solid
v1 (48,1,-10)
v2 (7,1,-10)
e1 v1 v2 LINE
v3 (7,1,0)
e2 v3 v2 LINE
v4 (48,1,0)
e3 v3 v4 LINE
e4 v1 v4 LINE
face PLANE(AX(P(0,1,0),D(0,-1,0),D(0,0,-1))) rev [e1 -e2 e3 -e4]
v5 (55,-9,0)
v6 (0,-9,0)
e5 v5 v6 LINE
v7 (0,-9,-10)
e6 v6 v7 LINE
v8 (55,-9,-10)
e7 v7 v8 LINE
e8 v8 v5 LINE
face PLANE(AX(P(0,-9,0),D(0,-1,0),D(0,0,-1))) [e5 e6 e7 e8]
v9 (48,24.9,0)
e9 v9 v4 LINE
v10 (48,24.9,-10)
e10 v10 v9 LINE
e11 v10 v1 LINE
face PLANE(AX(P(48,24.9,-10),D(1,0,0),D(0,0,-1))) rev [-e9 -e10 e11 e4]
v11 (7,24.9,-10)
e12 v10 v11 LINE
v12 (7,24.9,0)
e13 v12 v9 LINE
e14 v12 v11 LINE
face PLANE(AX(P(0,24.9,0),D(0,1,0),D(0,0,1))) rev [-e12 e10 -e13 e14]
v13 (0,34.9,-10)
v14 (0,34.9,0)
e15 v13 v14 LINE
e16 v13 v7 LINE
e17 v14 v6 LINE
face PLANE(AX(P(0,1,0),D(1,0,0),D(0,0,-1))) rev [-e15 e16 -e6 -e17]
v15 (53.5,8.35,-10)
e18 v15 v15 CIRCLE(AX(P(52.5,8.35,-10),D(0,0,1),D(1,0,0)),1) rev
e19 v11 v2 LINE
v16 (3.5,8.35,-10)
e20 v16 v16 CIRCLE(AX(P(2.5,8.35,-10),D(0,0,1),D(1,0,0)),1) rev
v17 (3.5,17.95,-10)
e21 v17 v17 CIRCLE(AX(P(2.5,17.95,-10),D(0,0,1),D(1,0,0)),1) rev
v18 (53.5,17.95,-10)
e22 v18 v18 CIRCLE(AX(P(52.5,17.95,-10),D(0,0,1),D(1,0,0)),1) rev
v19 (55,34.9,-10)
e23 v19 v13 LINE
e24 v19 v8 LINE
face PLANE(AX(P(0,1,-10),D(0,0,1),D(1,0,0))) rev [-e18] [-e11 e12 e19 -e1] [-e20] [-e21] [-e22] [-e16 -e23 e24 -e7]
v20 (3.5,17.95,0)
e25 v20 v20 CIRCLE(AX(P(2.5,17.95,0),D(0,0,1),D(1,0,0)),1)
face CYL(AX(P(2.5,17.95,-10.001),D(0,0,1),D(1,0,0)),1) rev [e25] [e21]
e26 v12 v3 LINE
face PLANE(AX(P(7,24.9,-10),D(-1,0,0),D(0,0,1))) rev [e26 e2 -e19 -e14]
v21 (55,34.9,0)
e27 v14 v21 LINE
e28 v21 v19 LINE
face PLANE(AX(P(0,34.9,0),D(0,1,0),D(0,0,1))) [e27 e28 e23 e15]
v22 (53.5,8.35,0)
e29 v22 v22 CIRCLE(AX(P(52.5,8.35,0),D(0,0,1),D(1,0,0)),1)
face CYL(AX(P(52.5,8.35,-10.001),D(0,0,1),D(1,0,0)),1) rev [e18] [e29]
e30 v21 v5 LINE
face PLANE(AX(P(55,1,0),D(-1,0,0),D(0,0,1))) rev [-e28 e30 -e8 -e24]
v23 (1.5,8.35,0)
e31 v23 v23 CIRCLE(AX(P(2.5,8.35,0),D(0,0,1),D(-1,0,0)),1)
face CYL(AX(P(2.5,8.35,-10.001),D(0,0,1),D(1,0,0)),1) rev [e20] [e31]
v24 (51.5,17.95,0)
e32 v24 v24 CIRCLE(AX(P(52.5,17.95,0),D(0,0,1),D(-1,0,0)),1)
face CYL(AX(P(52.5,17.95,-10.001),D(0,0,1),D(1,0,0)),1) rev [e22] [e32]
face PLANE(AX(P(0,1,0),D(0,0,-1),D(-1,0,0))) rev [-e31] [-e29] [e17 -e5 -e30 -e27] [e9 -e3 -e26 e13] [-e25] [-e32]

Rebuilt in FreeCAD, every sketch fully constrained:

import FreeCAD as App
import Part
import Sketcher
from FreeCAD import Vector

doc = App.newDocument("Part")
body = doc.addObject("PartDesign::Body", "Body")

# Sketch on XZ plane
sketch1 = body.newObject("Sketcher::SketchObject", "Sketch")
sketch1.AttachmentSupport = (doc.getObject("XZ_Plane"), [""])
sketch1.MapMode = "FlatFace"
sketch1.addGeometry([
    Part.LineSegment(Vector(0, -10, 0), Vector(0, 0, 0)),
    Part.LineSegment(Vector(0, 0, 0), Vector(55, 0, 0)),
    Part.LineSegment(Vector(55, 0, 0), Vector(55, -10, 0)),
    Part.LineSegment(Vector(55, -10, 0), Vector(0, -10, 0)),
], False)
sketch1.addConstraint([
    Sketcher.Constraint("Coincident", 0, 2, 1, 1),
    Sketcher.Constraint("Coincident", 1, 2, 2, 1),
    Sketcher.Constraint("Coincident", 2, 2, 3, 1),
    Sketcher.Constraint("Coincident", 3, 2, 0, 1),
    Sketcher.Constraint("Vertical", 0),
    Sketcher.Constraint("Horizontal", 1),
    Sketcher.Constraint("Vertical", 2),
    Sketcher.Constraint("Horizontal", 3),
    Sketcher.Constraint("Coincident", 0, 2, -1, 1),
    Sketcher.Constraint("DistanceX", 1, 1, 1, 2, 55.0),
    Sketcher.Constraint("DistanceY", 0, 1, 0, 2, 10.0),
])
pad1 = body.newObject("PartDesign::Pad", "Pad")
pad1.Profile = sketch1
pad1.Length = 1
pad1.Reversed = True

# Sketch on XZ plane
sketch2 = body.newObject("Sketcher::SketchObject", "Sketch001")
sketch2.AttachmentSupport = (doc.getObject("XZ_Plane"), [""])
sketch2.MapMode = "FlatFace"
sketch2.AttachmentOffset = App.Placement(Vector(0, 0, -1), App.Rotation())
sketch2.addGeometry([
    Part.LineSegment(Vector(48, -10, 0), Vector(48, 0, 0)),  # 0
    Part.LineSegment(Vector(48, 0, 0), Vector(55, 0, 0)),  # 1
    Part.LineSegment(Vector(55, 0, 0), Vector(55, -10, 0)),  # 2
    Part.LineSegment(Vector(55, -10, 0), Vector(48, -10, 0)),  # 3
    Part.LineSegment(Vector(0, -10, 0), Vector(0, 0, 0)),  # 4
    Part.LineSegment(Vector(0, 0, 0), Vector(7, 0, 0)),  # 5
    Part.LineSegment(Vector(7, 0, 0), Vector(7, -10, 0)),  # 6
    Part.LineSegment(Vector(7, -10, 0), Vector(0, -10, 0)),  # 7
], False)
sketch2.addConstraint([
    Sketcher.Constraint("Coincident", 0, 2, 1, 1),
    Sketcher.Constraint("Coincident", 1, 2, 2, 1),
    Sketcher.Constraint("Coincident", 2, 2, 3, 1),
    Sketcher.Constraint("Coincident", 3, 2, 0, 1),
    Sketcher.Constraint("Coincident", 4, 2, 5, 1),
    Sketcher.Constraint("Coincident", 5, 2, 6, 1),
    Sketcher.Constraint("Coincident", 6, 2, 7, 1),
    Sketcher.Constraint("Coincident", 7, 2, 4, 1),
    Sketcher.Constraint("Vertical", 0),
    Sketcher.Constraint("Horizontal", 1),
    Sketcher.Constraint("Vertical", 2),
    Sketcher.Constraint("Horizontal", 3),
    Sketcher.Constraint("Vertical", 4),
    Sketcher.Constraint("Horizontal", 5),
    Sketcher.Constraint("Vertical", 6),
    Sketcher.Constraint("Horizontal", 7),
    Sketcher.Constraint("Coincident", 4, 2, -1, 1),
    Sketcher.Constraint("PointOnObject", 0, 2, -1),
    Sketcher.Constraint("Horizontal", 3, 2, 6, 2),
    Sketcher.Constraint("Equal", 3, 5),
    Sketcher.Constraint("DistanceX", 1, 1, 1, 2, 7.0),
    Sketcher.Constraint("DistanceY", 0, 1, 0, 2, 10.0),
    Sketcher.Constraint("DistanceX", -1, 1, 0, 2, 48.0),
])
pad2 = body.newObject("PartDesign::Pad", "Pad001")
pad2.Profile = sketch2
pad2.Length = 23.9
pad2.Reversed = True

# Sketch on XY plane
sketch3 = body.newObject("Sketcher::SketchObject", "Sketch002")
sketch3.AttachmentSupport = (doc.getObject("XY_Plane"), [""])
sketch3.MapMode = "FlatFace"
sketch3.addGeometry(Part.Circle(Vector(2.5, 17.9, 0), Vector(0, 0, 1), 1), False)
sketch3.addConstraint([
    Sketcher.Constraint("Diameter", 0, 2.0),
    Sketcher.Constraint("DistanceX", -1, 1, 0, 3, 2.5),
    Sketcher.Constraint("DistanceY", -1, 1, 0, 3, 17.95),
])
pocket1 = body.newObject("PartDesign::Pocket", "Pocket")
pocket1.Profile = sketch3
pocket1.Type = "UpToFirst"

# Sketch on XY plane
sketch4 = body.newObject("Sketcher::SketchObject", "Sketch003")
sketch4.AttachmentSupport = (doc.getObject("XY_Plane"), [""])
sketch4.MapMode = "FlatFace"
sketch4.addGeometry(Part.Circle(Vector(2.5, 8.3, 0), Vector(0, 0, 1), 1), False)
sketch4.addConstraint([
    Sketcher.Constraint("Diameter", 0, 2.0),
    Sketcher.Constraint("DistanceX", -1, 1, 0, 3, 2.5),
    Sketcher.Constraint("DistanceY", -1, 1, 0, 3, 8.35),
])
pocket2 = body.newObject("PartDesign::Pocket", "Pocket001")
pocket2.Profile = sketch4
pocket2.Type = "UpToFirst"

# Sketch on XY plane
sketch5 = body.newObject("Sketcher::SketchObject", "Sketch004")
sketch5.AttachmentSupport = (doc.getObject("XY_Plane"), [""])
sketch5.MapMode = "FlatFace"
sketch5.addGeometry(Part.Circle(Vector(52.5, 8.3, 0), Vector(0, 0, 1), 1), False)
sketch5.addConstraint([
    Sketcher.Constraint("Diameter", 0, 2.0),
    Sketcher.Constraint("DistanceX", -1, 1, 0, 3, 52.5),
    Sketcher.Constraint("DistanceY", -1, 1, 0, 3, 8.35),
])
pocket3 = body.newObject("PartDesign::Pocket", "Pocket002")
pocket3.Profile = sketch5
pocket3.Type = "UpToFirst"

# Sketch on XY plane
sketch6 = body.newObject("Sketcher::SketchObject", "Sketch005")
sketch6.AttachmentSupport = (doc.getObject("XY_Plane"), [""])
sketch6.MapMode = "FlatFace"
sketch6.addGeometry(Part.Circle(Vector(52.5, 17.9, 0), Vector(0, 0, 1), 1), False)
sketch6.addConstraint([
    Sketcher.Constraint("Diameter", 0, 2.0),
    Sketcher.Constraint("DistanceX", -1, 1, 0, 3, 52.5),
    Sketcher.Constraint("DistanceY", -1, 1, 0, 3, 17.95),
])
pocket4 = body.newObject("PartDesign::Pocket", "Pocket003")
pocket4.Profile = sketch6
pocket4.Type = "UpToFirst"

# Sketch on XZ plane
sketch7 = body.newObject("Sketcher::SketchObject", "Sketch006")
sketch7.AttachmentSupport = (doc.getObject("XZ_Plane"), [""])
sketch7.MapMode = "FlatFace"
sketch7.addGeometry([
    Part.LineSegment(Vector(0, 0, 0), Vector(0, -10, 0)),
    Part.LineSegment(Vector(0, -10, 0), Vector(55, -10, 0)),
    Part.LineSegment(Vector(55, -10, 0), Vector(55, 0, 0)),
    Part.LineSegment(Vector(55, 0, 0), Vector(0, 0, 0)),
], False)
sketch7.addConstraint([
    Sketcher.Constraint("Coincident", 0, 2, 1, 1),
    Sketcher.Constraint("Coincident", 1, 2, 2, 1),
    Sketcher.Constraint("Coincident", 2, 2, 3, 1),
    Sketcher.Constraint("Coincident", 3, 2, 0, 1),
    Sketcher.Constraint("Vertical", 0),
    Sketcher.Constraint("Horizontal", 1),
    Sketcher.Constraint("Vertical", 2),
    Sketcher.Constraint("Horizontal", 3),
    Sketcher.Constraint("Coincident", 3, 2, -1, 1),
    Sketcher.Constraint("DistanceX", 1, 1, 1, 2, 55.0),
    Sketcher.Constraint("DistanceY", 0, 2, 0, 1, 10.0),
])
pad3 = body.newObject("PartDesign::Pad", "Pad002")
pad3.Profile = sketch7
pad3.Length = 9

# Sketch on XZ plane
sketch8 = body.newObject("Sketcher::SketchObject", "Sketch007")
sketch8.AttachmentSupport = (doc.getObject("XZ_Plane"), [""])
sketch8.MapMode = "FlatFace"
sketch8.AttachmentOffset = App.Placement(Vector(0, 0, -24.9), App.Rotation())
sketch8.addGeometry([
    Part.LineSegment(Vector(0, -10, 0), Vector(0, 0, 0)),
    Part.LineSegment(Vector(0, 0, 0), Vector(55, 0, 0)),
    Part.LineSegment(Vector(55, 0, 0), Vector(55, -10, 0)),
    Part.LineSegment(Vector(55, -10, 0), Vector(0, -10, 0)),
], False)
sketch8.addConstraint([
    Sketcher.Constraint("Coincident", 0, 2, 1, 1),
    Sketcher.Constraint("Coincident", 1, 2, 2, 1),
    Sketcher.Constraint("Coincident", 2, 2, 3, 1),
    Sketcher.Constraint("Coincident", 3, 2, 0, 1),
    Sketcher.Constraint("Vertical", 0),
    Sketcher.Constraint("Horizontal", 1),
    Sketcher.Constraint("Vertical", 2),
    Sketcher.Constraint("Horizontal", 3),
    Sketcher.Constraint("Coincident", 0, 2, -1, 1),
    Sketcher.Constraint("DistanceX", 1, 1, 1, 2, 55.0),
    Sketcher.Constraint("DistanceY", 0, 1, 0, 2, 10.0),
])
pad4 = body.newObject("PartDesign::Pad", "Pad003")
pad4.Profile = sketch8
pad4.Length = 10
pad4.Reversed = True

doc.recompute()
